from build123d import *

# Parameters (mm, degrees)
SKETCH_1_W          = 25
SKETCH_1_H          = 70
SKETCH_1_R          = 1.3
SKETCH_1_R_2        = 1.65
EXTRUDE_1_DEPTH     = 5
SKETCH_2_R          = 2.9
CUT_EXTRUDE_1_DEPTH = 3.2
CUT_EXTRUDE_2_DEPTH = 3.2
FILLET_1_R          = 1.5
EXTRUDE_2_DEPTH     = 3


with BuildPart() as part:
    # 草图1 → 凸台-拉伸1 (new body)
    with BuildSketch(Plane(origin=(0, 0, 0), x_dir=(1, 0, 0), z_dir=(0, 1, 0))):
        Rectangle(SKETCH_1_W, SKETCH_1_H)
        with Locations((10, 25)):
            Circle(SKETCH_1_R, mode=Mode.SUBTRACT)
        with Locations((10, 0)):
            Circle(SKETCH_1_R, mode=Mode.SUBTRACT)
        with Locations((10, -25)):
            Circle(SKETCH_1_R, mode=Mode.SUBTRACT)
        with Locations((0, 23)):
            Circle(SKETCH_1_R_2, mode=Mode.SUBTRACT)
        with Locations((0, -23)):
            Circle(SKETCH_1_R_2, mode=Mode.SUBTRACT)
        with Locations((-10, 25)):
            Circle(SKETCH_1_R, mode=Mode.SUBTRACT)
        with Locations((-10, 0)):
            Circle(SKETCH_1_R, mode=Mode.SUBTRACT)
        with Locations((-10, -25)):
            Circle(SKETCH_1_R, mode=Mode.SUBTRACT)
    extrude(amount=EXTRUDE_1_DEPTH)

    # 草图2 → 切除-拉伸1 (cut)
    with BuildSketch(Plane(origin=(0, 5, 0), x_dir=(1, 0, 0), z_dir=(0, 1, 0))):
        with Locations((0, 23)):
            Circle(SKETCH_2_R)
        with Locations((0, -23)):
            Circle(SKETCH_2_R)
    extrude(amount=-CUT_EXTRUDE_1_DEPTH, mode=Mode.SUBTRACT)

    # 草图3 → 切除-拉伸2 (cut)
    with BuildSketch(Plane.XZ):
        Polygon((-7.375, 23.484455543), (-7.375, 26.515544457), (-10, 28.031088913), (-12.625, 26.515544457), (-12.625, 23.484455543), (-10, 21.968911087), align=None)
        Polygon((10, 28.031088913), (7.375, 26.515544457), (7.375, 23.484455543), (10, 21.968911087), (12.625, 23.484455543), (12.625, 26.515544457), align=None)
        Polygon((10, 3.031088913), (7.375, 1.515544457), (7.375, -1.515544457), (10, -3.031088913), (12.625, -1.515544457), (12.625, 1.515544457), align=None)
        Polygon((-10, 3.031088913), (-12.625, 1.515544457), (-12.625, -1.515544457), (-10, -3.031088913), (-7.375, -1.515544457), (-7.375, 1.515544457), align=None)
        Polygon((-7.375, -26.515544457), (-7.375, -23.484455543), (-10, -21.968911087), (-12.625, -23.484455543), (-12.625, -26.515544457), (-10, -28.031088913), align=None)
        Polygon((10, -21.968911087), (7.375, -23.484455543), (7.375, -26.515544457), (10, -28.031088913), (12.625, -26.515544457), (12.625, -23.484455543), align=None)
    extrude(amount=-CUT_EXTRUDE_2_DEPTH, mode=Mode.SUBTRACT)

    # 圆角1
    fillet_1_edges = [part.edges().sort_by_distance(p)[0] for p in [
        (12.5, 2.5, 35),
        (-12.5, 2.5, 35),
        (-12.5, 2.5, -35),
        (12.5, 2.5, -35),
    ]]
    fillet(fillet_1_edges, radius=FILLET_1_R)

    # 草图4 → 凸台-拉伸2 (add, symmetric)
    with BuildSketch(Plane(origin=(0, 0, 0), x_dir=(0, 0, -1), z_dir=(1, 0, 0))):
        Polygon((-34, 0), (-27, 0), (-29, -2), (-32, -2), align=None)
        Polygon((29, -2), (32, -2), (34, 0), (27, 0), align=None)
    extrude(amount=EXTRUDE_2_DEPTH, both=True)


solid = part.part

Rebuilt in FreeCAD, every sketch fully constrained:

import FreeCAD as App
import Part
import Sketcher
from FreeCAD import Vector
Q = App.Units.Quantity


def edges_at(feature, points):
    """Names of the edges that pass closest to the given points."""
    edges = feature.Shape.Edges
    near = lambda p: min(range(len(edges)), key=lambda i: edges[i].distToShape(Part.Vertex(*p))[0])
    return sorted({f"Edge{near(p) + 1}" for p in points})


def add_polygon(sketch, points):
    """Adds a closed chain of lines whose ends are joined by coincident constraints."""
    first, n = sketch.GeometryCount, len(points)
    for a, b in zip(points, points[1:] + points[:1]):
        sketch.addGeometry(Part.LineSegment(App.Vector(*a, 0), App.Vector(*b, 0)), False)
    for i in range(n):
        sketch.addConstraint(Sketcher.Constraint("Coincident", first + i, 2, first + (i + 1) % n, 1))

doc = App.newDocument("Part")
body = doc.addObject("PartDesign::Body", "Body")

sketch1 = body.newObject("Sketcher::SketchObject", "Sketch")
sketch1.AttachmentSupport = (doc.getObject("XZ_Plane"), [""])
sketch1.MapMode = "FlatFace"
add_polygon(sketch1, [(-12.5, -35), (-12.5, 35), (12.5, 35), (12.5, -35)])
sketch1.addGeometry(Part.Circle(Vector(-10, 25, 0), Vector(0, 0, 1), 1.3), False)
sketch1.addGeometry(Part.Circle(Vector(0, 23, 0), Vector(0, 0, 1), 1.6), False)
sketch1.addGeometry(Part.Circle(Vector(10, 25, 0), Vector(0, 0, 1), 1.3), False)
sketch1.addGeometry(Part.Circle(Vector(-10, 0, 0), Vector(0, 0, 1), 1.3), False)
sketch1.addGeometry(Part.Circle(Vector(-10, -25, 0), Vector(0, 0, 1), 1.3), False)
sketch1.addGeometry(Part.Circle(Vector(10, 0, 0), Vector(0, 0, 1), 1.3), False)
sketch1.addGeometry(Part.Circle(Vector(0, -23, 0), Vector(0, 0, 1), 1.6), False)
sketch1.addGeometry(Part.Circle(Vector(10, -25, 0), Vector(0, 0, 1), 1.3), False)
sketch1.addConstraint(Sketcher.Constraint("Vertical", 0))
sketch1.addConstraint(Sketcher.Constraint("Horizontal", 1))
sketch1.addConstraint(Sketcher.Constraint("Vertical", 2))
sketch1.addConstraint(Sketcher.Constraint("Horizontal", 3))
sketch1.addConstraint(Sketcher.Constraint("Equal", 4, 6))
sketch1.addConstraint(Sketcher.Constraint("Equal", 6, 7))
sketch1.addConstraint(Sketcher.Constraint("Equal", 7, 8))
sketch1.addConstraint(Sketcher.Constraint("Equal", 8, 9))
sketch1.addConstraint(Sketcher.Constraint("Equal", 5, 10))
sketch1.addConstraint(Sketcher.Constraint("Equal", 9, 11))
sketch1.addConstraint(Sketcher.Constraint("Symmetric", 6, 3, 8, 3, -1, 1))
sketch1.addConstraint(Sketcher.Constraint("Symmetric", 7, 3, 9, 3, -1, 1))
sketch1.addConstraint(Sketcher.Constraint("Symmetric", 5, 3, 10, 3, -1, 1))
sketch1.addConstraint(Sketcher.Constraint("Symmetric", 4, 3, 11, 3, -1, 1))
sketch1.addConstraint(Sketcher.Constraint("Symmetric", 0, 2, 2, 2, -1, 1))
sketch1.addConstraint(Sketcher.Constraint("Symmetric", 4, 3, 6, 3, -2))
sketch1.addConstraint(Sketcher.Constraint("PointOnObject", 5, 3, -2))
sketch1.addConstraint(Sketcher.Constraint("PointOnObject", 7, 3, -1))
sketch1.addConstraint(Sketcher.Constraint("Vertical", 4, 3, 7, 3))
sketch1.addConstraint(Sketcher.Constraint("Diameter", 4, 2.6))
sketch1.addConstraint(Sketcher.Constraint("Diameter", 5, 3.3))
sketch1.addConstraint(Sketcher.Constraint("DistanceX", 1, 1, 1, 2, 25.0))
sketch1.addConstraint(Sketcher.Constraint("DistanceY", 0, 1, 0, 2, 70.0))
sketch1.addConstraint(Sketcher.Constraint("DistanceX", 4, 3, -1, 1, 10.0))
sketch1.addConstraint(Sketcher.Constraint("DistanceY", -1, 1, 4, 3, 25.0))
sketch1.addConstraint(Sketcher.Constraint("DistanceY", -1, 1, 5, 3, 23.0))
pad1 = body.newObject("PartDesign::Pad", "Pad")
pad1.Profile = sketch1
pad1.Length = 5
pad1.Reversed = True

sketch2 = body.newObject("Sketcher::SketchObject", "Sketch001")
sketch2.AttachmentSupport = (doc.getObject("XZ_Plane"), [""])
sketch2.MapMode = "FlatFace"
sketch2.AttachmentOffset = App.Placement(Vector(0, 0, -5), App.Rotation())
sketch2.addGeometry(Part.Circle(Vector(0, -23, 0), Vector(0, 0, 1), 2.9), False)
sketch2.addGeometry(Part.Circle(Vector(0, 23, 0), Vector(0, 0, 1), 2.9), False)
sketch2.addConstraint(Sketcher.Constraint("Equal", 0, 1))
sketch2.addConstraint(Sketcher.Constraint("Symmetric", 0, 3, 1, 3, -1, 1))
sketch2.addConstraint(Sketcher.Constraint("PointOnObject", 0, 3, -2))
sketch2.addConstraint(Sketcher.Constraint("Diameter", 0, 5.8))
sketch2.addConstraint(Sketcher.Constraint("DistanceY", 0, 3, -1, 1, 23.0))
pocket1 = body.newObject("PartDesign::Pocket", "Pocket")
pocket1.Profile = sketch2
pocket1.Length = 3.2
pocket1.Reversed = True

sketch3 = body.newObject("Sketcher::SketchObject", "Sketch002")
sketch3.AttachmentSupport = (doc.getObject("XZ_Plane"), [""])
sketch3.MapMode = "FlatFace"
add_polygon(sketch3, [(-7.4, 23.5), (-7.4, 26.5), (-10, 28), (-12.6, 26.5), (-12.6, 23.5), (-10, 22)])
add_polygon(sketch3, [(10, 28), (7.4, 26.5), (7.4, 23.5), (10, 22), (12.6, 23.5), (12.6, 26.5)])
add_polygon(sketch3, [(10, 3), (7.4, 1.5), (7.4, -1.5), (10, -3), (12.6, -1.5), (12.6, 1.5)])
add_polygon(sketch3, [(-10, 3), (-12.6, 1.5), (-12.6, -1.5), (-10, -3), (-7.4, -1.5), (-7.4, 1.5)])
add_polygon(sketch3, [(-7.4, -26.5), (-7.4, -23.5), (-10, -22), (-12.6, -23.5), (-12.6, -26.5), (-10, -28)])
add_polygon(sketch3, [(10, -22), (7.4, -23.5), (7.4, -26.5), (10, -28), (12.6, -26.5), (12.6, -23.5)])
sketch3.addConstraint(Sketcher.Constraint("Vertical", 0))
sketch3.addConstraint(Sketcher.Constraint("Vertical", 3))
sketch3.addConstraint(Sketcher.Constraint("Vertical", 7))
sketch3.addConstraint(Sketcher.Constraint("Vertical", 10))
sketch3.addConstraint(Sketcher.Constraint("Vertical", 13))
sketch3.addConstraint(Sketcher.Constraint("Vertical", 16))
sketch3.addConstraint(Sketcher.Constraint("Vertical", 19))
sketch3.addConstraint(Sketcher.Constraint("Vertical", 22))
sketch3.addConstraint(Sketcher.Constraint("Vertical", 24))
sketch3.addConstraint(Sketcher.Constraint("Vertical", 27))
sketch3.addConstraint(Sketcher.Constraint("Vertical", 31))
sketch3.addConstraint(Sketcher.Constraint("Vertical", 34))
sketch3.addConstraint(Sketcher.Constraint("Symmetric", 15, 2, 18, 2, -1, 1))
sketch3.addConstraint(Sketcher.Constraint("Symmetric", 17, 2, 20, 2, -1, 1))
sketch3.addConstraint(Sketcher.Constraint("Symmetric", 12, 2, 21, 2, -1, 1))
sketch3.addConstraint(Sketcher.Constraint("Symmetric", 14, 2, 23, 2, -1, 1))
sketch3.addConstraint(Sketcher.Constraint("Symmetric", 7, 2, 24, 2, -1, 1))
sketch3.addConstraint(Sketcher.Constraint("Symmetric", 8, 2, 25, 2, -1, 1))
sketch3.addConstraint(Sketcher.Constraint("Symmetric", 9, 2, 26, 2, -1, 1))
sketch3.addConstraint(Sketcher.Constraint("Symmetric", 11, 2, 28, 2, -1, 1))
sketch3.addConstraint(Sketcher.Constraint("Symmetric", 5, 2, 30, 2, -1, 1))
sketch3.addConstraint(Sketcher.Constraint("Symmetric", 1, 2, 32, 2, -1, 1))
sketch3.addConstraint(Sketcher.Constraint("Symmetric", 2, 2, 33, 2, -1, 1))
sketch3.addConstraint(Sketcher.Constraint("Symmetric", 4, 2, 35, 2, -1, 1))
sketch3.addConstraint(Sketcher.Constraint("Symmetric", 0, 2, 6, 2, -2))
sketch3.addConstraint(Sketcher.Constraint("Symmetric", 4, 2, 8, 2, -2))
sketch3.addConstraint(Sketcher.Constraint("Symmetric", 3, 2, 9, 2, -2))
sketch3.addConstraint(Sketcher.Constraint("Symmetric", 1, 2, 11, 2, -2))
sketch3.addConstraint(Sketcher.Constraint("Symmetric", 14, 2, 20, 2, -2))
sketch3.addConstraint(Sketcher.Constraint("Parallel", 1, 4))
sketch3.addConstraint(Sketcher.Constraint("Parallel", 2, 5))
sketch3.addConstraint(Sketcher.Constraint("Parallel", 5, 6))
sketch3.addConstraint(Sketcher.Constraint("Parallel", 4, 8))
sketch3.addConstraint(Sketcher.Constraint("Parallel", 8, 11))
sketch3.addConstraint(Sketcher.Constraint("Parallel", 9, 12))
sketch3.addConstraint(Sketcher.Constraint("Parallel", 11, 14))
sketch3.addConstraint(Sketcher.Constraint("Parallel", 12, 15))
sketch3.addConstraint(Sketcher.Constraint("Parallel", 14, 17))
sketch3.addConstraint(Sketcher.Constraint("Parallel", 17, 20))
sketch3.addConstraint(Sketcher.Constraint("Parallel", 20, 23))
sketch3.addConstraint(Sketcher.Constraint("Parallel", 25, 28))
sketch3.addConstraint(Sketcher.Constraint("Parallel", 26, 29))
sketch3.addConstraint(Sketcher.Constraint("Parallel", 28, 32))
sketch3.addConstraint(Sketcher.Constraint("Parallel", 32, 35))
sketch3.addConstraint(Sketcher.Constraint("Horizontal", 0, 2, 2, 2))
sketch3.addConstraint(Sketcher.Constraint("Horizontal", 3, 2, 5, 2))
sketch3.addConstraint(Sketcher.Constraint("Horizontal", 13, 2, 15, 2))
sketch3.addConstraint(Sketcher.Constraint("Vertical", 7, 2, 12, 2))
sketch3.addConstraint(Sketcher.Constraint("Vertical", 11, 2, 14, 2))
sketch3.addConstraint(Sketcher.Constraint("Equal", 10, 13))
sketch3.addConstraint(Sketcher.Constraint("Angle", 1, Q("150 deg")))
sketch3.addConstraint(Sketcher.Constraint("DistanceX", 1, 2, -1, 1, 10.0))
sketch3.addConstraint(Sketcher.Constraint("DistanceY", 12, 2, 6, 2, 25.0))
sketch3.addConstraint(Sketcher.Constraint("DistanceX", 2, 2, 0, 2, 5.25))
sketch3.addConstraint(Sketcher.Constraint("DistanceY", 0, 1, 0, 2, 3.031089))
pocket2 = body.newObject("PartDesign::Pocket", "Pocket001")
pocket2.Profile = sketch3
pocket2.Length = 3.2
doc.recompute()

fillet = body.newObject("PartDesign::Fillet", "Fillet")
fillet.Base = (pocket2, edges_at(pocket2, [
    (12.5, 2.5, 35),
    (-12.5, 2.5, 35),
    (-12.5, 2.5, -35),
    (12.5, 2.5, -35),
]))
fillet.Radius = 1.5

sketch4 = body.newObject("Sketcher::SketchObject", "Sketch003")
sketch4.AttachmentSupport = (doc.getObject("YZ_Plane"), [""])
sketch4.MapMode = "FlatFace"
add_polygon(sketch4, [(0, 27), (0, 34), (-2, 32), (-2, 29)])
add_polygon(sketch4, [(-2, -29), (-2, -32), (0, -34), (0, -27)])
sketch4.addConstraint(Sketcher.Constraint("Vertical", 0))
sketch4.addConstraint(Sketcher.Constraint("Vertical", 2))
sketch4.addConstraint(Sketcher.Constraint("Vertical", 4))
sketch4.addConstraint(Sketcher.Constraint("Vertical", 6))
sketch4.addConstraint(Sketcher.Constraint("Symmetric", 0, 2, 5, 2, -1, 1))
sketch4.addConstraint(Sketcher.Constraint("Symmetric", 1, 2, 4, 2, -1))
sketch4.addConstraint(Sketcher.Constraint("Symmetric", 3, 2, 6, 2, -1))
sketch4.addConstraint(Sketcher.Constraint("Perpendicular", 1, 3))
sketch4.addConstraint(Sketcher.Constraint("Parallel", 3, 5))
sketch4.addConstraint(Sketcher.Constraint("Perpendicular", 5, 7))
sketch4.addConstraint(Sketcher.Constraint("DistanceY", 0, 1, 0, 2, 7.0))
sketch4.addConstraint(Sketcher.Constraint("DistanceY", 2, 2, 2, 1, 3.0))
sketch4.addConstraint(Sketcher.Constraint("DistanceY", -1, 1, 0, 2, 34.0))
pad2 = body.newObject("PartDesign::Pad", "Pad001")
pad2.Profile = sketch4
pad2.Length = 6
pad2.Midplane = True

doc.recompute()
